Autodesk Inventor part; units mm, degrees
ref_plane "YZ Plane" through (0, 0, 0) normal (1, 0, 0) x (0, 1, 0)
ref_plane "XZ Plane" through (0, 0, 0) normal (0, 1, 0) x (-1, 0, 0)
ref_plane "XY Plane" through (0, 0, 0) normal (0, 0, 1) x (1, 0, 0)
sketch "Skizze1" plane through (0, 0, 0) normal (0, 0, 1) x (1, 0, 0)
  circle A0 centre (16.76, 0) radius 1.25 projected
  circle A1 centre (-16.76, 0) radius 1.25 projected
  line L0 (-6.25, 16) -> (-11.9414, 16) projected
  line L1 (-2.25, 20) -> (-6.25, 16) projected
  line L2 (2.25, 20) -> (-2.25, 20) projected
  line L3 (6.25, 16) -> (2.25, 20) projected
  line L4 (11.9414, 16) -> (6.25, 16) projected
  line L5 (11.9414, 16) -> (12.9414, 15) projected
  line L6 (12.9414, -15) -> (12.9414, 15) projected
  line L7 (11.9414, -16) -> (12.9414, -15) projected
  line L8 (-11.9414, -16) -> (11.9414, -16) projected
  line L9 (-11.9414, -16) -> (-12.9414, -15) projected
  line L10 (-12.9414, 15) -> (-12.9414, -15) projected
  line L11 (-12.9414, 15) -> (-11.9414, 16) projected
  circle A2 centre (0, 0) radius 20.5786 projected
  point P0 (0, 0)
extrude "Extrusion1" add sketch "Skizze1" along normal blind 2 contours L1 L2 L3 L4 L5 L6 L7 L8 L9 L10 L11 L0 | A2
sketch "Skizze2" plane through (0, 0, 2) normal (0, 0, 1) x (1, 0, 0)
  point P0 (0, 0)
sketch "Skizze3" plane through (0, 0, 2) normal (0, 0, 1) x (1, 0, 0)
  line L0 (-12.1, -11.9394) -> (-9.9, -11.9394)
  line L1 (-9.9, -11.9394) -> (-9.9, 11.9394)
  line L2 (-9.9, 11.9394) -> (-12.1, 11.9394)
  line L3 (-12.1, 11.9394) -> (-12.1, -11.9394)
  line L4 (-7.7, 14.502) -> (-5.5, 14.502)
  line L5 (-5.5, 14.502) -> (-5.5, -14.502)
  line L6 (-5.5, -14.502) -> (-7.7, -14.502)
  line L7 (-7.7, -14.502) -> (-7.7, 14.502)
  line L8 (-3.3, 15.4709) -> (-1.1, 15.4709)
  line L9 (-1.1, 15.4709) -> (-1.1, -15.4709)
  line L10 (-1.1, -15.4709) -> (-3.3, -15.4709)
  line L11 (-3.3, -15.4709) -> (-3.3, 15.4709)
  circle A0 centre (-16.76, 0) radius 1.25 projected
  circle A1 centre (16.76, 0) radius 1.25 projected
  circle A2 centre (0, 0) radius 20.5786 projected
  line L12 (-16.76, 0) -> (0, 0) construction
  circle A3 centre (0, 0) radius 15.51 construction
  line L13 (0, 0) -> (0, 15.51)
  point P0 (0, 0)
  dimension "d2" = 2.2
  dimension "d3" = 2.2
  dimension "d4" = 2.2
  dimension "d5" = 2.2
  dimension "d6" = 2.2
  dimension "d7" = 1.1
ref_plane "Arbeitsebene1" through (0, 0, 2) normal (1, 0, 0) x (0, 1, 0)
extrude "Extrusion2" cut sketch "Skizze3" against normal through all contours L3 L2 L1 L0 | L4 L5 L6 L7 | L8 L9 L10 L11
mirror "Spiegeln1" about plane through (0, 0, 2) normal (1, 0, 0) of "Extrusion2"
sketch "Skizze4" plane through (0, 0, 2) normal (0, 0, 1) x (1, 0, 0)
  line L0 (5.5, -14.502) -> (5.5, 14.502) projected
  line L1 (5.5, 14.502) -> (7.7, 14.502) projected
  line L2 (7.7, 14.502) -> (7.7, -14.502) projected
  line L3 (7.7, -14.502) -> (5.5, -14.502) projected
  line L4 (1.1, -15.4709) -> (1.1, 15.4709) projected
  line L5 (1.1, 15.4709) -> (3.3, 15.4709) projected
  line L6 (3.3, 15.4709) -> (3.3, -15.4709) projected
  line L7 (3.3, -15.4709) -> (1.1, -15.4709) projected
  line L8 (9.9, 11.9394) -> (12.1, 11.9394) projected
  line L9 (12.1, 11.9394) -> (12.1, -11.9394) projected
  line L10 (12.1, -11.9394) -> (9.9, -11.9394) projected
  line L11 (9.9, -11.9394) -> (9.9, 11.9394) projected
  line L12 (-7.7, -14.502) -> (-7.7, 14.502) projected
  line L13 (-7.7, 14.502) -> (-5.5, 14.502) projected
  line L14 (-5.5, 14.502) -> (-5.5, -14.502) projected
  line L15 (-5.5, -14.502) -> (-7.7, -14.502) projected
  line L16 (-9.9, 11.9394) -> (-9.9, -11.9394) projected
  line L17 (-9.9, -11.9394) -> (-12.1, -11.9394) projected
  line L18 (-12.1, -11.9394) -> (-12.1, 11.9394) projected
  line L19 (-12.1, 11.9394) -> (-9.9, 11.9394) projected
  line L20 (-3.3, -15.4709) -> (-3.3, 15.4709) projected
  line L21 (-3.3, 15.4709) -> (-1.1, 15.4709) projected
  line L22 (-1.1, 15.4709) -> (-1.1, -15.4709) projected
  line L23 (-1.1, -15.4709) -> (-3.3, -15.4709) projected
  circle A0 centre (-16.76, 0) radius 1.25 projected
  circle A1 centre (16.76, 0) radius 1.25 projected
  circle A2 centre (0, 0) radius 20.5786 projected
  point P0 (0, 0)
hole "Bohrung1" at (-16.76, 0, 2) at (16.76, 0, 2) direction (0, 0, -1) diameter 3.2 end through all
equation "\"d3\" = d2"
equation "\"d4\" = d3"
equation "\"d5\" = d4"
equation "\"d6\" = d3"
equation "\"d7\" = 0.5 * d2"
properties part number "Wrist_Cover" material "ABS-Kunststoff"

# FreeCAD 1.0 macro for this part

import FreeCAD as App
import Part
import Sketcher

V = App.Vector

doc = App.newDocument("Part")
body = doc.addObject("PartDesign::Body", "Body")

# Sketch on XY plane
sketch1 = body.newObject("Sketcher::SketchObject", "Sketch")
sketch1.AttachmentSupport = (doc.getObject("XY_Plane"), [""])
sketch1.MapMode = "FlatFace"
sketch1.addGeometry(Part.Circle(V(0, 0, 0), V(0, 0, 1), 20.6), False)
sketch1.addGeometry(Part.Circle(V(-16.8, 0, 0), V(0, 0, 1), 1.2), False)
sketch1.addGeometry(Part.Circle(V(16.8, 0, 0), V(0, 0, 1), 1.2), False)
sketch1.addConstraint(Sketcher.Constraint("Coincident", 0, 3, -1, 1))
sketch1.addConstraint(Sketcher.Constraint("Equal", 1, 2))
sketch1.addConstraint(Sketcher.Constraint("Symmetric", 1, 3, 2, 3, -1, 1))
sketch1.addConstraint(Sketcher.Constraint("PointOnObject", 1, 3, -1))
sketch1.addConstraint(Sketcher.Constraint("Diameter", 1, 2.5))
sketch1.addConstraint(Sketcher.Constraint("Diameter", 0, 41.1572))
sketch1.addConstraint(Sketcher.Constraint("DistanceX", 1, 3, -1, 1, 16.76))
pad1 = body.newObject("PartDesign::Pad", "Pad")
pad1.Profile = sketch1
pad1.Length = 2

# Sketch on XY plane
sketch2 = body.newObject("Sketcher::SketchObject", "Sketch001")
sketch2.AttachmentSupport = (doc.getObject("XY_Plane"), [""])
sketch2.MapMode = "FlatFace"
sketch2.AttachmentOffset = App.Placement(V(0, 0, 2), App.Rotation())
sketch2.addGeometry(Part.LineSegment(V(-12.1, 11.9, 0), V(-12.1, -11.9, 0)), False)
sketch2.addGeometry(Part.LineSegment(V(-12.1, -11.9, 0), V(-9.9, -11.9, 0)), False)
sketch2.addGeometry(Part.LineSegment(V(-9.9, -11.9, 0), V(-9.9, 11.9, 0)), False)
sketch2.addGeometry(Part.LineSegment(V(-9.9, 11.9, 0), V(-12.1, 11.9, 0)), False)
sketch2.addGeometry(Part.LineSegment(V(-5.5, 14.5, 0), V(-7.7, 14.5, 0)), False)
sketch2.addGeometry(Part.LineSegment(V(-7.7, 14.5, 0), V(-7.7, -14.5, 0)), False)
sketch2.addGeometry(Part.LineSegment(V(-7.7, -14.5, 0), V(-5.5, -14.5, 0)), False)
sketch2.addGeometry(Part.LineSegment(V(-5.5, -14.5, 0), V(-5.5, 14.5, 0)), False)
sketch2.addGeometry(Part.LineSegment(V(-1.1, 15.5, 0), V(-3.3, 15.5, 0)), False)
sketch2.addGeometry(Part.LineSegment(V(-3.3, 15.5, 0), V(-3.3, -15.5, 0)), False)
sketch2.addGeometry(Part.LineSegment(V(-3.3, -15.5, 0), V(-1.1, -15.5, 0)), False)
sketch2.addGeometry(Part.LineSegment(V(-1.1, -15.5, 0), V(-1.1, 15.5, 0)), False)
sketch2.addConstraint(Sketcher.Constraint("Coincident", 0, 2, 1, 1))
sketch2.addConstraint(Sketcher.Constraint("Coincident", 1, 2, 2, 1))
sketch2.addConstraint(Sketcher.Constraint("Coincident", 2, 2, 3, 1))
sketch2.addConstraint(Sketcher.Constraint("Coincident", 3, 2, 0, 1))
sketch2.addConstraint(Sketcher.Constraint("Coincident", 4, 2, 5, 1))
sketch2.addConstraint(Sketcher.Constraint("Coincident", 5, 2, 6, 1))
sketch2.addConstraint(Sketcher.Constraint("Coincident", 6, 2, 7, 1))
sketch2.addConstraint(Sketcher.Constraint("Coincident", 7, 2, 4, 1))
sketch2.addConstraint(Sketcher.Constraint("Coincident", 8, 2, 9, 1))
sketch2.addConstraint(Sketcher.Constraint("Coincident", 9, 2, 10, 1))
sketch2.addConstraint(Sketcher.Constraint("Coincident", 10, 2, 11, 1))
sketch2.addConstraint(Sketcher.Constraint("Coincident", 11, 2, 8, 1))
sketch2.addConstraint(Sketcher.Constraint("Vertical", 0))
sketch2.addConstraint(Sketcher.Constraint("Horizontal", 1))
sketch2.addConstraint(Sketcher.Constraint("Vertical", 2))
sketch2.addConstraint(Sketcher.Constraint("Horizontal", 3))
sketch2.addConstraint(Sketcher.Constraint("Horizontal", 4))
sketch2.addConstraint(Sketcher.Constraint("Vertical", 5))
sketch2.addConstraint(Sketcher.Constraint("Horizontal", 6))
sketch2.addConstraint(Sketcher.Constraint("Vertical", 7))
sketch2.addConstraint(Sketcher.Constraint("Horizontal", 8))
sketch2.addConstraint(Sketcher.Constraint("Vertical", 9))
sketch2.addConstraint(Sketcher.Constraint("Horizontal", 10))
sketch2.addConstraint(Sketcher.Constraint("Vertical", 11))
sketch2.addConstraint(Sketcher.Constraint("Equal", 3, 4))
sketch2.addConstraint(Sketcher.Constraint("Equal", 6, 8))
sketch2.addConstraint(Sketcher.Constraint("DistanceX", 1, 1, 1, 2, 2.2))
sketch2.addConstraint(Sketcher.Constraint("DistanceX", 10, 2, -1, 1, 1.1))
sketch2.addConstraint(Sketcher.Constraint("DistanceX", 2, 2, 4, 2, 2.2))
sketch2.addConstraint(Sketcher.Constraint("DistanceX", 7, 2, 8, 2, 2.2))
sketch2.addConstraint(Sketcher.Constraint("DistanceY", 5, 2, 5, 1, 29.004))
sketch2.addConstraint(Sketcher.Constraint("DistanceY", 0, 2, 0, 1, 23.8788))
sketch2.addConstraint(Sketcher.Constraint("DistanceY", 9, 2, 9, 1, 30.9418))
sketch2.addConstraint(Sketcher.Constraint("DistanceY", -1, 1, 4, 2, 14.502))
sketch2.addConstraint(Sketcher.Constraint("DistanceY", -1, 1, 8, 2, 15.471))
sketch2.addConstraint(Sketcher.Constraint("DistanceY", 0, 2, -1, 1, 11.9394))
pocket1 = body.newObject("PartDesign::Pocket", "Pocket")
pocket1.Profile = sketch2
pocket1.Type = "ThroughAll"
doc.recompute()

mirrored = body.newObject("PartDesign::Mirrored", "Mirrored")
mirrored.Originals = [pocket1]
mirrored.MirrorPlane = (doc.getObject("YZ_Plane"), [""])
body.Tip = mirrored

# Sketch on XY plane
sketch3 = body.newObject("Sketcher::SketchObject", "Sketch002")
sketch3.AttachmentSupport = (doc.getObject("XY_Plane"), [""])
sketch3.MapMode = "FlatFace"
sketch3.AttachmentOffset = App.Placement(V(0, 0, 2), App.Rotation())
sketch3.addGeometry(Part.Circle(V(-16.8, 0, 0), V(0, 0, 1), 1.6), False)
sketch3.addGeometry(Part.Circle(V(16.8, 0, 0), V(0, 0, 1), 1.6), False)
sketch3.addConstraint(Sketcher.Constraint("Equal", 0, 1))
sketch3.addConstraint(Sketcher.Constraint("Symmetric", 0, 3, 1, 3, -1, 1))
sketch3.addConstraint(Sketcher.Constraint("PointOnObject", 0, 3, -1))
sketch3.addConstraint(Sketcher.Constraint("Diameter", 0, 3.2))
sketch3.addConstraint(Sketcher.Constraint("DistanceX", 0, 3, -1, 1, 16.76))
doc.recompute()
hole = body.newObject("PartDesign::Hole", "Hole")
hole.Profile = sketch3
hole.ThreadType = "None"
hole.Diameter = 3.2
hole.DepthType = "ThroughAll"

doc.recompute()
